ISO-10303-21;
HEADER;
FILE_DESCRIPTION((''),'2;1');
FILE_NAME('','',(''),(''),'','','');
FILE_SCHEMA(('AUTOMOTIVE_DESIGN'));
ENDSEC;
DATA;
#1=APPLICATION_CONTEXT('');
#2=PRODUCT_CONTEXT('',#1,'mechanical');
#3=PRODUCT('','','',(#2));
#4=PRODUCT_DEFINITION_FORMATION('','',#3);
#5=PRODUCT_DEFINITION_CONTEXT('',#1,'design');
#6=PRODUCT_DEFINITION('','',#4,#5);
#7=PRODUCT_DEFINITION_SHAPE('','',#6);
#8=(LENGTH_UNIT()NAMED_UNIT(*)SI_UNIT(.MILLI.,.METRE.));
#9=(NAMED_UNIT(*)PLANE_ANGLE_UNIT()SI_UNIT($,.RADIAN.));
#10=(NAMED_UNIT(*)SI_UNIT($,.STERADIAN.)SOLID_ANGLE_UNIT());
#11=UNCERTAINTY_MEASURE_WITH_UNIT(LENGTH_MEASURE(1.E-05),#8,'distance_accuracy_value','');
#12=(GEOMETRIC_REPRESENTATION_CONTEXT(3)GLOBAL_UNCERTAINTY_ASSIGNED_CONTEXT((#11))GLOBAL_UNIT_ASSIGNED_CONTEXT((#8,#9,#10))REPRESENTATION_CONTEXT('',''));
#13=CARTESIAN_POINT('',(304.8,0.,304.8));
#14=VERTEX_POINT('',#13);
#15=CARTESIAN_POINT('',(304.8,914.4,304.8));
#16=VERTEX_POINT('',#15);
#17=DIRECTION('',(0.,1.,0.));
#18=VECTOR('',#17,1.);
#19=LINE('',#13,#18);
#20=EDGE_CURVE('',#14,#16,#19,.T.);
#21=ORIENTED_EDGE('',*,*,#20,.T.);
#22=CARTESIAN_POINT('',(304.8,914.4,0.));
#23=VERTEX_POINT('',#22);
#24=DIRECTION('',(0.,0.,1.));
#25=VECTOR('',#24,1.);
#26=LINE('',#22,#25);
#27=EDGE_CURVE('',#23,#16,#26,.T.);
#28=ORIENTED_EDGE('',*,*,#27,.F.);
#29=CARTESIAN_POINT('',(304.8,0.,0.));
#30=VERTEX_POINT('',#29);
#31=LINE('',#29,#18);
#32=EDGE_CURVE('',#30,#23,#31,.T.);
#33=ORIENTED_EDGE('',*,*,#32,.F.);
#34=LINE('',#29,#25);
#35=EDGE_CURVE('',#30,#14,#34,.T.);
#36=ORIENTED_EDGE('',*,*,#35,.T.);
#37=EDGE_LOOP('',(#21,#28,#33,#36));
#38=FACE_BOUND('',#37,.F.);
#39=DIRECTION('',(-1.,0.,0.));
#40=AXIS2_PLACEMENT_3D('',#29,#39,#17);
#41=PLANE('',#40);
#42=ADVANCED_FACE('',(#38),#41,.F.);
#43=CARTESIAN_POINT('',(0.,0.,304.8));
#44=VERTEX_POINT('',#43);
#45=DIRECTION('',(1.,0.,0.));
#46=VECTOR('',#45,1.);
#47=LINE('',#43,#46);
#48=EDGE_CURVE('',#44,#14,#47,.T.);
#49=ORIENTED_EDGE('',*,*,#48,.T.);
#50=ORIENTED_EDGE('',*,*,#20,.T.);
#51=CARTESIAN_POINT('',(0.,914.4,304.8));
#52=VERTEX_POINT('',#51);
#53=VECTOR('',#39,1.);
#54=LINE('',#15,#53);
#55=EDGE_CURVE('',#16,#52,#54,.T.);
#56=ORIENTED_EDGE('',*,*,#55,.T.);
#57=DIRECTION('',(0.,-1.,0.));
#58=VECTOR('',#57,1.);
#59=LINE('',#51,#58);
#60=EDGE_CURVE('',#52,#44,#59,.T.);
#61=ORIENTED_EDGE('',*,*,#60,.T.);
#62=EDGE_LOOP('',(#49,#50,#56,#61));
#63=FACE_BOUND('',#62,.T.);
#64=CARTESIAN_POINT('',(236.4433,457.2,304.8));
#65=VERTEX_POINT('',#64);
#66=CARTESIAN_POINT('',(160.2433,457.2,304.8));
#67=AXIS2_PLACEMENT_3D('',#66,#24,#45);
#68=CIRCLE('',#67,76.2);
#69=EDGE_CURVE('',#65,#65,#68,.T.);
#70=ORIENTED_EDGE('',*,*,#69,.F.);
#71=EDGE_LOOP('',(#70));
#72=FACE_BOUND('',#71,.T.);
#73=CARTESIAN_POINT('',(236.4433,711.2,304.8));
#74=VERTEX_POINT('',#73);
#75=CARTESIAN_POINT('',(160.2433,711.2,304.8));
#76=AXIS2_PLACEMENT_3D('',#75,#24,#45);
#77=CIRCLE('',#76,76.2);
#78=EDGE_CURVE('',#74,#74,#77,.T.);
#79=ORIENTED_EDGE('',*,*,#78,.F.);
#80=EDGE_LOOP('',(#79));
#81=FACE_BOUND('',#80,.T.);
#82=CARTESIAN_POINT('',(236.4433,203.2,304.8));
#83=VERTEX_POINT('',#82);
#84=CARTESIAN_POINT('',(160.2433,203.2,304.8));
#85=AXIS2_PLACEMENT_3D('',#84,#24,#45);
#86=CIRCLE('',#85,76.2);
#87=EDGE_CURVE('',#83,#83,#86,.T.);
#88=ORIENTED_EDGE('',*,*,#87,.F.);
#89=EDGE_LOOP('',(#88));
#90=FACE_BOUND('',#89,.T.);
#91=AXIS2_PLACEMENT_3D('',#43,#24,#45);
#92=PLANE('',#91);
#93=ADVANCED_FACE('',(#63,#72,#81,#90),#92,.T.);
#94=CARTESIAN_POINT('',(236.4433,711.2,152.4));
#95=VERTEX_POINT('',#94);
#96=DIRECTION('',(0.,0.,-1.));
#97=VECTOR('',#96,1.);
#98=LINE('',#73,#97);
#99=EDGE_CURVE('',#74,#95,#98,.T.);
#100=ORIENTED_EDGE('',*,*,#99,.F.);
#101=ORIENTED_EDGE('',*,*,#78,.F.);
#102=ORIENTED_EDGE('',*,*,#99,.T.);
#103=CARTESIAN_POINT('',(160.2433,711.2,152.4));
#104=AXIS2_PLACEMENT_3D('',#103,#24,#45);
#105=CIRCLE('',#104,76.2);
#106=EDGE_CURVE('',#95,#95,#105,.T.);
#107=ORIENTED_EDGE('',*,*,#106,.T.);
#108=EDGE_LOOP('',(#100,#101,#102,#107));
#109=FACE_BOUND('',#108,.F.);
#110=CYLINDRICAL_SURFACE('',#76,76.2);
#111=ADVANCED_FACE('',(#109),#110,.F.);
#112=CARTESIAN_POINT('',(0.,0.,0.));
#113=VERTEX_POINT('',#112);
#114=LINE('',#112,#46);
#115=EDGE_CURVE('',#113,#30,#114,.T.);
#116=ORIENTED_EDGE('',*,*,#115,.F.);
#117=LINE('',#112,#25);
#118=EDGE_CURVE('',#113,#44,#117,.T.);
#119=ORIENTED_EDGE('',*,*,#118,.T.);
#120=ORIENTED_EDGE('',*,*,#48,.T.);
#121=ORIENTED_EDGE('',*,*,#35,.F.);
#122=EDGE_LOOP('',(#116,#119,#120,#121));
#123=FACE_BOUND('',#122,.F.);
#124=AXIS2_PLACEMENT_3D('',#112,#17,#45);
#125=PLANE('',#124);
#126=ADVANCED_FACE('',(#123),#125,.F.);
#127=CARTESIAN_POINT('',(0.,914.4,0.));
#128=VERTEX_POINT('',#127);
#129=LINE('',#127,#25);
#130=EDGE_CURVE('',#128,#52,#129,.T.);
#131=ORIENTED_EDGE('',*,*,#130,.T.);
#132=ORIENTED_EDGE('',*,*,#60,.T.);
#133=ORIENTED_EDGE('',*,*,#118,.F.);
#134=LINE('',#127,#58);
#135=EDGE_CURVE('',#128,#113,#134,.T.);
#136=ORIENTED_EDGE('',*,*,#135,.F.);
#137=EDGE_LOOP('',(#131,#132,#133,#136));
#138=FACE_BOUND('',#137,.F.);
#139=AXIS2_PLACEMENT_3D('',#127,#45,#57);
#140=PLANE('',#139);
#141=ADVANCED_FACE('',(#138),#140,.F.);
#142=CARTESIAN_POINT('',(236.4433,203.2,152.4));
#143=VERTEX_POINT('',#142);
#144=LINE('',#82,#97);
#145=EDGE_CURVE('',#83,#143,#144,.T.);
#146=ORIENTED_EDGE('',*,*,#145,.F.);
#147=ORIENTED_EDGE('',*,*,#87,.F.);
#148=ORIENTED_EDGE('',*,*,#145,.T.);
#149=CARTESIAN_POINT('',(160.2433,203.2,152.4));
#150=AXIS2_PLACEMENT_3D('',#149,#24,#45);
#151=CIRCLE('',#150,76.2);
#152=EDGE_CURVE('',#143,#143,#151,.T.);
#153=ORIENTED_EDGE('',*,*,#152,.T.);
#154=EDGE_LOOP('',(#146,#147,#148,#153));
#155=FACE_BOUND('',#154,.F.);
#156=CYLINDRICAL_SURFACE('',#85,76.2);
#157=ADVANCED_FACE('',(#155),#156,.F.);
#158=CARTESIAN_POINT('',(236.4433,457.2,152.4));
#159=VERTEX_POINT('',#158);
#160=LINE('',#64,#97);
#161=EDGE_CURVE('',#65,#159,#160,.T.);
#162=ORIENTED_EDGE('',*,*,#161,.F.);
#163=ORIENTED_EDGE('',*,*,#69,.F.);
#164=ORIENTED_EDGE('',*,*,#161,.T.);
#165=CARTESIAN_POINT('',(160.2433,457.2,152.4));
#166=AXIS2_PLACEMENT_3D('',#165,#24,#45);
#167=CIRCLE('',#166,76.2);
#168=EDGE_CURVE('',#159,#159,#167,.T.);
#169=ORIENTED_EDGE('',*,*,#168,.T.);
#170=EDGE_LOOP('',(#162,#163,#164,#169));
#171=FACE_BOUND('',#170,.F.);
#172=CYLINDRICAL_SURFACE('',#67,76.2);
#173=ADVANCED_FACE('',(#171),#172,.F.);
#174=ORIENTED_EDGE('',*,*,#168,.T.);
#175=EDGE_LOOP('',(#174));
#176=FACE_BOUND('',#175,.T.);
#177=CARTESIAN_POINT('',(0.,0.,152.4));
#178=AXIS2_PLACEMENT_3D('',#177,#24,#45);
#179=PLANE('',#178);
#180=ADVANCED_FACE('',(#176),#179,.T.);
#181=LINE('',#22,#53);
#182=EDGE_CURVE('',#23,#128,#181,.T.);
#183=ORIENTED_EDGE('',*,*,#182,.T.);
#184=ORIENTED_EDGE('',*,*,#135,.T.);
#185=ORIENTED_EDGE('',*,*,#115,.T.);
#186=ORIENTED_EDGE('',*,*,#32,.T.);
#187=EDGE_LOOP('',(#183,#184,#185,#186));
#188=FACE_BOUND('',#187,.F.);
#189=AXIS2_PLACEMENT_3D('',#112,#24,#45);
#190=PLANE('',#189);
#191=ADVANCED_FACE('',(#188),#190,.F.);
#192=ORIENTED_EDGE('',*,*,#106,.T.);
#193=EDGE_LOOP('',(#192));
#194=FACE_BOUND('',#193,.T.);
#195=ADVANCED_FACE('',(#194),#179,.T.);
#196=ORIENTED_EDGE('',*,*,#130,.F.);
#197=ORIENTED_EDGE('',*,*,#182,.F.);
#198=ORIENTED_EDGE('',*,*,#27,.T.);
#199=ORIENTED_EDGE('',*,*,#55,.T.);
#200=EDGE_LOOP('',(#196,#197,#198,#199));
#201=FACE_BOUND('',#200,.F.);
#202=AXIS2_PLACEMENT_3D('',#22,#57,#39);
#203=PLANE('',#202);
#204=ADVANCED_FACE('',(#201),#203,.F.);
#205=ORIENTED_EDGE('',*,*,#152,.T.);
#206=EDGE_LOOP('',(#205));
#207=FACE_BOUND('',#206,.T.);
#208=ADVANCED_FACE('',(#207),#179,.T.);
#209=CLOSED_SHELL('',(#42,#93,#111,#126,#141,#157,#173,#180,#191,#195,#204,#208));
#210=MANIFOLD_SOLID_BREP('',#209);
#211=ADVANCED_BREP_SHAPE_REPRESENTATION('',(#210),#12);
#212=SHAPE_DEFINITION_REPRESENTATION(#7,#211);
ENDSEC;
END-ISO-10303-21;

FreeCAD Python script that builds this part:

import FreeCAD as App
import Part
import Sketcher
from FreeCAD import Vector
Q = App.Units.Quantity


def add_polygon(sketch, points):
    """Adds a closed chain of lines whose ends are joined by coincident constraints."""
    first, n = sketch.GeometryCount, len(points)
    for a, b in zip(points, points[1:] + points[:1]):
        sketch.addGeometry(Part.LineSegment(App.Vector(*a, 0), App.Vector(*b, 0)), False)
    for i in range(n):
        sketch.addConstraint(Sketcher.Constraint("Coincident", first + i, 2, first + (i + 1) % n, 1))

doc = App.newDocument("Part")
body = doc.addObject("PartDesign::Body", "Body")

# Sketch on XY plane
sketch1 = body.newObject("Sketcher::SketchObject", "Sketch")
sketch1.AttachmentSupport = (doc.getObject("XY_Plane"), [""])
sketch1.MapMode = "FlatFace"
add_polygon(sketch1, [(0, 914), (0, 0), (305, 0), (305, 914)])  # lines 0-3
sketch1.addConstraint([
    Sketcher.Constraint("Vertical", 0),
    Sketcher.Constraint("Horizontal", 1),
    Sketcher.Constraint("Vertical", 2),
    Sketcher.Constraint("Horizontal", 3),
    Sketcher.Constraint("Coincident", 0, 2, -1, 1),
    Sketcher.Constraint("DistanceX", 1, 1, 1, 2, Q("12 in")),
    Sketcher.Constraint("DistanceY", 0, 2, 0, 1, Q("36 in")),
])
pad1 = body.newObject("PartDesign::Pad", "Pad")
pad1.Profile = sketch1
pad1.Length = Q("12 in")

# Sketch on XY plane
sketch2 = body.newObject("Sketcher::SketchObject", "Sketch001")
sketch2.AttachmentSupport = (doc.getObject("XY_Plane"), [""])
sketch2.MapMode = "FlatFace"
sketch2.AttachmentOffset = App.Placement(Vector(0, 0, 12 * 25.4), App.Rotation())
sketch2.addGeometry([
    Part.Circle(Vector(160, 711, 0), Vector(0, 0, 1), 76),
    Part.Circle(Vector(160, 457, 0), Vector(0, 0, 1), 76),
    Part.Circle(Vector(160, 203, 0), Vector(0, 0, 1), 76),
], False)
sketch2.addConstraint([
    Sketcher.Constraint("Equal", 0, 1),
    Sketcher.Constraint("Equal", 1, 2),
    Sketcher.Constraint("Vertical", 0, 3, 1, 3),
    Sketcher.Constraint("Vertical", 1, 3, 2, 3),
    Sketcher.Constraint("Diameter", 0, Q("6 in")),
    Sketcher.Constraint("DistanceY", -1, 1, 2, 3, Q("8 in")),
    Sketcher.Constraint("DistanceY", 1, 3, 0, 3, Q("10 in")),
    Sketcher.Constraint("DistanceY", 2, 3, 1, 3, Q("10 in")),
    Sketcher.Constraint("DistanceX", -1, 1, 0, 3, Q("6.3088 in")),
])
pocket1 = body.newObject("PartDesign::Pocket", "Pocket")
pocket1.Profile = sketch2
pocket1.Length = Q("6 in")

doc.recompute()
